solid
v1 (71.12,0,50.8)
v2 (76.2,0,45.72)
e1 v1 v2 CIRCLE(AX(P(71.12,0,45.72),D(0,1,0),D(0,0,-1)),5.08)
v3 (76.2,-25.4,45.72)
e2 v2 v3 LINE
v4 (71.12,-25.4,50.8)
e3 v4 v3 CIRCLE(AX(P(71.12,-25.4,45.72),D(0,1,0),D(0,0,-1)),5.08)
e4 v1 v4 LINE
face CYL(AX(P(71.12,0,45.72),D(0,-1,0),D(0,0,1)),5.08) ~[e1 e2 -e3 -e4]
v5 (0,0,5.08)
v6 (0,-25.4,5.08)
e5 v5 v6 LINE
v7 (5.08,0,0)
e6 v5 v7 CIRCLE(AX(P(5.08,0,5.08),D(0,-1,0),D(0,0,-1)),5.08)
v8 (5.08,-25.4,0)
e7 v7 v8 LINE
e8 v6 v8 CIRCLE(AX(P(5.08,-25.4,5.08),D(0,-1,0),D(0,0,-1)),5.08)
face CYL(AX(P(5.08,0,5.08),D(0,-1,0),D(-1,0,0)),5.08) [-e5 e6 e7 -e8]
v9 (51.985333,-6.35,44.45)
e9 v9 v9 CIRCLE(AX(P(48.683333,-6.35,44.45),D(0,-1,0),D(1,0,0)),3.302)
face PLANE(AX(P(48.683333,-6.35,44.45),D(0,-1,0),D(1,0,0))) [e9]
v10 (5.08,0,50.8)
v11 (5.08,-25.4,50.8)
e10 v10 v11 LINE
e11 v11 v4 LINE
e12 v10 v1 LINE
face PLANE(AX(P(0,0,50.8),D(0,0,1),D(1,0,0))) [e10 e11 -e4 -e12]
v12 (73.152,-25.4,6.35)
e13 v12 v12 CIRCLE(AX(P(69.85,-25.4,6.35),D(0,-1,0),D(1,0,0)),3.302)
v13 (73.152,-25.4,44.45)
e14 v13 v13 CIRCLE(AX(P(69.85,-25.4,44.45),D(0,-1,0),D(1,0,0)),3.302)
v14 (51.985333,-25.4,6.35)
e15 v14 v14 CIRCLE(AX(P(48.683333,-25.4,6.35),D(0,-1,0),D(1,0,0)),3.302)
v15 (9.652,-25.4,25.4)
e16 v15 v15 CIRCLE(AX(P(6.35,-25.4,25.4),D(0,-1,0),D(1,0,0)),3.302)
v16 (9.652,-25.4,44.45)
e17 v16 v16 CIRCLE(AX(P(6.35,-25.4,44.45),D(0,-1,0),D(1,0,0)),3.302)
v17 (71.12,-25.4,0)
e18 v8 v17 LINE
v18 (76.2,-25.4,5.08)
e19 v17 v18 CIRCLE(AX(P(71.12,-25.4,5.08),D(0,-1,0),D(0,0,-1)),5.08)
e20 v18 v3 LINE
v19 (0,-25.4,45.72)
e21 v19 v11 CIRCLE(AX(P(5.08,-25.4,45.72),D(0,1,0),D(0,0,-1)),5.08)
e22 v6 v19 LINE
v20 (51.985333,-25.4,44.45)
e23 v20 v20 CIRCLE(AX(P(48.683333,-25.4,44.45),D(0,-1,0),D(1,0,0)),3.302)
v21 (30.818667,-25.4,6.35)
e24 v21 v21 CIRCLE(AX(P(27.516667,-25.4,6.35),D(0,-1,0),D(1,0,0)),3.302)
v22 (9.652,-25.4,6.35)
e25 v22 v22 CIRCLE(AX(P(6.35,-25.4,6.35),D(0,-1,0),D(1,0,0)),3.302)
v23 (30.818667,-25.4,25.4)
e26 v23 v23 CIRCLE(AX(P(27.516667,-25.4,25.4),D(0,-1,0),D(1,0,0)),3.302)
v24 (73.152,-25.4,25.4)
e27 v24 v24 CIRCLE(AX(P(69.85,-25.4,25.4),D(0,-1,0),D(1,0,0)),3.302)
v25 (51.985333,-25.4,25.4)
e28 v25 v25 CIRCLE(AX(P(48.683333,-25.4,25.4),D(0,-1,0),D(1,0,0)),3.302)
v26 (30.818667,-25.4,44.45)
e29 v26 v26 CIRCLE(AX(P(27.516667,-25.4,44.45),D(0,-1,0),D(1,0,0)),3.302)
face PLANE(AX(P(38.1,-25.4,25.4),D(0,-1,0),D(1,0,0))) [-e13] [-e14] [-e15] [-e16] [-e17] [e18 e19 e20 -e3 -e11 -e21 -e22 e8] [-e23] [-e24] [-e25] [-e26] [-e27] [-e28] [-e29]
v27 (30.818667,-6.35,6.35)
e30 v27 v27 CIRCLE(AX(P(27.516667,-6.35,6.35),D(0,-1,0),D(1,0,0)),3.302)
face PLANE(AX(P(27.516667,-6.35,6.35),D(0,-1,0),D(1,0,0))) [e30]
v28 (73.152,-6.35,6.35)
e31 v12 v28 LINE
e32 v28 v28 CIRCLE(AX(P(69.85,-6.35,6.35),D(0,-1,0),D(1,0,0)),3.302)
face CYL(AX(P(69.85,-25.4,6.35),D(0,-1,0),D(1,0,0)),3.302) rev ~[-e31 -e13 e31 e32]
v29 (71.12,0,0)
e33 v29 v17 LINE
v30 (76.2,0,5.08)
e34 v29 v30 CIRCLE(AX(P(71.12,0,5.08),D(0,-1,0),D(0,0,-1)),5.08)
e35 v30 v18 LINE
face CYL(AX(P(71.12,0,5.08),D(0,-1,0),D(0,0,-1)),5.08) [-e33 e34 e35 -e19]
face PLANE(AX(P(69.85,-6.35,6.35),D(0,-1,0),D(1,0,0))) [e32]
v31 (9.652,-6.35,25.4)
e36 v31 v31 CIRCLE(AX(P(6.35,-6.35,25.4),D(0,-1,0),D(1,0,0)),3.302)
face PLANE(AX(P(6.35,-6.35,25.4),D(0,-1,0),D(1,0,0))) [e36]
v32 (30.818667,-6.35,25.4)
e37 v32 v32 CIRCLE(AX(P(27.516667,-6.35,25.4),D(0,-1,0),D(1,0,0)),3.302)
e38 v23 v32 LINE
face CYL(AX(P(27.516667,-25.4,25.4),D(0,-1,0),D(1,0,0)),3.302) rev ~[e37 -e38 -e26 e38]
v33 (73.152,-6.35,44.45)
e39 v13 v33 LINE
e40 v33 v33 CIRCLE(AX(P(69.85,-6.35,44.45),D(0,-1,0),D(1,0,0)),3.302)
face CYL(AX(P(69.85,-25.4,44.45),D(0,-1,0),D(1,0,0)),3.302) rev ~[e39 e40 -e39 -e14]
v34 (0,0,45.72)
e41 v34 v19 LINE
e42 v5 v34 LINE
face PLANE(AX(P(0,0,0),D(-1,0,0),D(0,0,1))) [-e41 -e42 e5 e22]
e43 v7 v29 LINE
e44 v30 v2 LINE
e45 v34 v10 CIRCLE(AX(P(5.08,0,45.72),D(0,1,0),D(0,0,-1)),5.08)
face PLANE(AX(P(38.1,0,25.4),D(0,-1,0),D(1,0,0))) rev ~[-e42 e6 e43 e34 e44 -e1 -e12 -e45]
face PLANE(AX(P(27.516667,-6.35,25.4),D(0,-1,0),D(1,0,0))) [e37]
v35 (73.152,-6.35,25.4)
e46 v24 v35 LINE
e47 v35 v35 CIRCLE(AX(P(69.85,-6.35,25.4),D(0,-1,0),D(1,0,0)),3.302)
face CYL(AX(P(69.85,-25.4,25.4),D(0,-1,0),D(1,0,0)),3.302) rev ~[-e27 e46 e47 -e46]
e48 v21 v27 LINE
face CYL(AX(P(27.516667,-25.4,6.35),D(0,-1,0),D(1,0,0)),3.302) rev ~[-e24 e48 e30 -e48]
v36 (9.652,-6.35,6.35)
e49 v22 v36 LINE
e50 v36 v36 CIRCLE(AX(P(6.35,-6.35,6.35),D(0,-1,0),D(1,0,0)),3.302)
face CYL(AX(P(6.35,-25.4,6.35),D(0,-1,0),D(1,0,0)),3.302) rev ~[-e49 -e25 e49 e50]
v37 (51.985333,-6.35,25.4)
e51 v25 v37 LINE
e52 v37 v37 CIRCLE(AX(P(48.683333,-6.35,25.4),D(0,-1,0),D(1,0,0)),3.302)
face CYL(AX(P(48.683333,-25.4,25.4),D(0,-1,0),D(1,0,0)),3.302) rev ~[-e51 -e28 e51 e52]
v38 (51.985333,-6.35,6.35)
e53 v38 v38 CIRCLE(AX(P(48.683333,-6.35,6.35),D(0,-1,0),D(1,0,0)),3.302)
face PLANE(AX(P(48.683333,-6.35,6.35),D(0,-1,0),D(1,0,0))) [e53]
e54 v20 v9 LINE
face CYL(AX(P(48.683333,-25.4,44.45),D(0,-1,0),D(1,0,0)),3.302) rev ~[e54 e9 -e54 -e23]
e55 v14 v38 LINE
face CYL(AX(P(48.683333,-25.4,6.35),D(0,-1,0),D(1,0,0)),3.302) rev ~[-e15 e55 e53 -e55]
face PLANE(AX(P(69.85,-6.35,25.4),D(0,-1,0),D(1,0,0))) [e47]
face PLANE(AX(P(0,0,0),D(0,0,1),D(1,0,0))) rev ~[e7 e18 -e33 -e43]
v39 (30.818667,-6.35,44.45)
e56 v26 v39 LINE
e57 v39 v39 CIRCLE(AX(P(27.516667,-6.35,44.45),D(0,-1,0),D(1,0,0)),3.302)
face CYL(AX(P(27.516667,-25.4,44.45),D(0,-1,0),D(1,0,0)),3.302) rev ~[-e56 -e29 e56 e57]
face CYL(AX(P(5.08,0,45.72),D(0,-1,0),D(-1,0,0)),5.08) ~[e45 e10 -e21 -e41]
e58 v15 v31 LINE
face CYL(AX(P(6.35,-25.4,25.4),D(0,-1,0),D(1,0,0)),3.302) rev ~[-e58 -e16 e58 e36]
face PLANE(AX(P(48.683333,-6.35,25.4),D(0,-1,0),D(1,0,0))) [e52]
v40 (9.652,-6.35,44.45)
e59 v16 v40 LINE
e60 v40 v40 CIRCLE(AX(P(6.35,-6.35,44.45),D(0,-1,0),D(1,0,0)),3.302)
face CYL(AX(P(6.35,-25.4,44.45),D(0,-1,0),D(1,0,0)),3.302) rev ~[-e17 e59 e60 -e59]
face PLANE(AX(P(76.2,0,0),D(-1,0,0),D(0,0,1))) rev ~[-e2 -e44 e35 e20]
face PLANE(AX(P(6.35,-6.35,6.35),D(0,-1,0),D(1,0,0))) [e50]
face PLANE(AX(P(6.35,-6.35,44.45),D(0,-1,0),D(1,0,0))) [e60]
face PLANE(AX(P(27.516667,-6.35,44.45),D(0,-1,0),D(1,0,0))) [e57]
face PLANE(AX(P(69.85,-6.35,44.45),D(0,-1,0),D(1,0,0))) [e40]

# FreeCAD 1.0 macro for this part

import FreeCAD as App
import Part
import Sketcher
from FreeCAD import Vector
Q = App.Units.Quantity


def edges_at(feature, points):
    """Names of the edges that pass closest to the given points."""
    edges = feature.Shape.Edges
    near = lambda p: min(range(len(edges)), key=lambda i: edges[i].distToShape(Part.Vertex(*p))[0])
    return sorted({f"Edge{near(p) + 1}" for p in points})


def add_polygon(sketch, points):
    """Adds a closed chain of lines whose ends are joined by coincident constraints."""
    first, n = sketch.GeometryCount, len(points)
    for a, b in zip(points, points[1:] + points[:1]):
        sketch.addGeometry(Part.LineSegment(App.Vector(*a, 0), App.Vector(*b, 0)), False)
    for i in range(n):
        sketch.addConstraint(Sketcher.Constraint("Coincident", first + i, 2, first + (i + 1) % n, 1))

doc = App.newDocument("Part")
params = doc.addObject("Spreadsheet::Sheet", "Params")
for row, (alias, value) in enumerate([
    ("sketch1_width", "3 in"),
    ("sketch1_height", "2 in"),
    ("pad1_length", "1 in"),
    ("sketch2_diameter", "0.26 in"),
    ("pocket1_length", "0.75 in"),
    ("fillet_radius", "0.2 in"),
], start=1):
    params.set(f"A{row}", alias)
    params.set(f"B{row}", "=" + value)
    params.setAlias(f"B{row}", alias)

body = doc.addObject("PartDesign::Body", "Body")

sketch1 = doc.addObject("Sketcher::SketchObject", "Sketch")
body.addObject(sketch1)
sketch1.AttachmentSupport = (doc.XZ_Plane, [""])
sketch1.MapMode = "FlatFace"
add_polygon(sketch1, [(0, 50.8), (0, 0), (76.2, 0), (76.2, 50.8)])
sketch1.addConstraint([
    Sketcher.Constraint("Vertical", 0),
    Sketcher.Constraint("Horizontal", 1),
    Sketcher.Constraint("Vertical", 2),
    Sketcher.Constraint("Horizontal", 3),
    Sketcher.Constraint("Coincident", 0, 2, -1, 1),
    Sketcher.Constraint("DistanceX", 1, 1, 1, 2, Q("3 in")),
    Sketcher.Constraint("DistanceY", 0, 2, 0, 1, Q("2 in")),
])
sketch1.setExpression("Constraints[9]", "Params.sketch1_width")
sketch1.setExpression("Constraints[10]", "Params.sketch1_height")
pad1 = doc.addObject("PartDesign::Pad", "Pad")
body.addObject(pad1)
pad1.Profile = sketch1
pad1.setExpression("Length", "Params.pad1_length")

sketch2 = doc.addObject("Sketcher::SketchObject", "Sketch001")
body.addObject(sketch2)
sketch2.AttachmentSupport = (doc.XZ_Plane, [""])
sketch2.MapMode = "FlatFace"
sketch2.AttachmentOffset = App.Placement(Vector(0, 0, 1 * 25.4), App.Rotation())
sketch2.addGeometry([
    Part.Circle(Vector(69.85, 6.35, 0), Vector(0, 0, 1), 3.302),
    Part.Circle(Vector(69.85, 25.4, 0), Vector(0, 0, 1), 3.302),
    Part.Circle(Vector(69.85, 44.45, 0), Vector(0, 0, 1), 3.302),
    Part.Circle(Vector(48.683333, 6.35, 0), Vector(0, 0, 1), 3.302),
    Part.Circle(Vector(48.683333, 25.4, 0), Vector(0, 0, 1), 3.302),
    Part.Circle(Vector(48.683333, 44.45, 0), Vector(0, 0, 1), 3.302),
    Part.Circle(Vector(27.516667, 6.35, 0), Vector(0, 0, 1), 3.302),
    Part.Circle(Vector(27.516667, 25.4, 0), Vector(0, 0, 1), 3.302),
    Part.Circle(Vector(27.516667, 44.45, 0), Vector(0, 0, 1), 3.302),
    Part.Circle(Vector(6.35, 6.35, 0), Vector(0, 0, 1), 3.302),
    Part.Circle(Vector(6.35, 25.4, 0), Vector(0, 0, 1), 3.302),
    Part.Circle(Vector(6.35, 44.45, 0), Vector(0, 0, 1), 3.302),
], False)
sketch2.addConstraint([
    Sketcher.Constraint("Equal", 0, 1),
    Sketcher.Constraint("Equal", 1, 2),
    Sketcher.Constraint("Equal", 2, 3),
    Sketcher.Constraint("Equal", 3, 4),
    Sketcher.Constraint("Equal", 4, 5),
    Sketcher.Constraint("Equal", 5, 6),
    Sketcher.Constraint("Equal", 6, 7),
    Sketcher.Constraint("Equal", 7, 8),
    Sketcher.Constraint("Equal", 8, 9),
    Sketcher.Constraint("Equal", 9, 10),
    Sketcher.Constraint("Equal", 10, 11),
    Sketcher.Constraint("Horizontal", 0, 3, 3, 3),
    Sketcher.Constraint("Horizontal", 1, 3, 4, 3),
    Sketcher.Constraint("Horizontal", 2, 3, 5, 3),
    Sketcher.Constraint("Horizontal", 3, 3, 6, 3),
    Sketcher.Constraint("Horizontal", 4, 3, 7, 3),
    Sketcher.Constraint("Horizontal", 5, 3, 8, 3),
    Sketcher.Constraint("Horizontal", 6, 3, 9, 3),
    Sketcher.Constraint("Horizontal", 7, 3, 10, 3),
    Sketcher.Constraint("Horizontal", 8, 3, 11, 3),
    Sketcher.Constraint("Vertical", 0, 3, 1, 3),
    Sketcher.Constraint("Vertical", 1, 3, 2, 3),
    Sketcher.Constraint("Vertical", 3, 3, 4, 3),
    Sketcher.Constraint("Vertical", 4, 3, 5, 3),
    Sketcher.Constraint("Vertical", 6, 3, 7, 3),
    Sketcher.Constraint("Vertical", 7, 3, 8, 3),
    Sketcher.Constraint("Vertical", 9, 3, 10, 3),
    Sketcher.Constraint("Vertical", 10, 3, 11, 3),
    Sketcher.Constraint("Diameter", 0, Q("0.26 in")),
    Sketcher.Constraint("DistanceY", -1, 1, 1, 3, Q("1 in")),
    Sketcher.Constraint("DistanceY", 0, 3, 2, 3, Q("1.5 in")),
    Sketcher.Constraint("DistanceX", -1, 1, 0, 3, Q("2.75 in")),
    Sketcher.Constraint("DistanceY", -1, 1, 0, 3, Q("0.25 in")),
    Sketcher.Constraint("DistanceX", -1, 1, 9, 3, Q("0.25 in")),
    Sketcher.Constraint("DistanceX", -1, 1, 3, 3, Q("48.683333 mm")),
    Sketcher.Constraint("DistanceX", -1, 1, 6, 3, Q("27.516667 mm")),
])
sketch2.setExpression("Constraints[28]", "Params.sketch2_diameter")
pocket1 = doc.addObject("PartDesign::Pocket", "Pocket")
body.addObject(pocket1)
pocket1.Profile = sketch2
pocket1.setExpression("Length", "Params.pocket1_length")
doc.recompute()

fillet = doc.addObject("PartDesign::Fillet", "Fillet")
body.addObject(fillet)
fillet.Base = (pocket1, edges_at(pocket1, [
    (76.2, -12.7, 50.8),
    (0, -12.7, 50.8),
    (0, -12.7, 0),
    (76.2, -12.7, 0),
]))
fillet.setExpression("Radius", "Params.fillet_radius")

doc.recompute()
